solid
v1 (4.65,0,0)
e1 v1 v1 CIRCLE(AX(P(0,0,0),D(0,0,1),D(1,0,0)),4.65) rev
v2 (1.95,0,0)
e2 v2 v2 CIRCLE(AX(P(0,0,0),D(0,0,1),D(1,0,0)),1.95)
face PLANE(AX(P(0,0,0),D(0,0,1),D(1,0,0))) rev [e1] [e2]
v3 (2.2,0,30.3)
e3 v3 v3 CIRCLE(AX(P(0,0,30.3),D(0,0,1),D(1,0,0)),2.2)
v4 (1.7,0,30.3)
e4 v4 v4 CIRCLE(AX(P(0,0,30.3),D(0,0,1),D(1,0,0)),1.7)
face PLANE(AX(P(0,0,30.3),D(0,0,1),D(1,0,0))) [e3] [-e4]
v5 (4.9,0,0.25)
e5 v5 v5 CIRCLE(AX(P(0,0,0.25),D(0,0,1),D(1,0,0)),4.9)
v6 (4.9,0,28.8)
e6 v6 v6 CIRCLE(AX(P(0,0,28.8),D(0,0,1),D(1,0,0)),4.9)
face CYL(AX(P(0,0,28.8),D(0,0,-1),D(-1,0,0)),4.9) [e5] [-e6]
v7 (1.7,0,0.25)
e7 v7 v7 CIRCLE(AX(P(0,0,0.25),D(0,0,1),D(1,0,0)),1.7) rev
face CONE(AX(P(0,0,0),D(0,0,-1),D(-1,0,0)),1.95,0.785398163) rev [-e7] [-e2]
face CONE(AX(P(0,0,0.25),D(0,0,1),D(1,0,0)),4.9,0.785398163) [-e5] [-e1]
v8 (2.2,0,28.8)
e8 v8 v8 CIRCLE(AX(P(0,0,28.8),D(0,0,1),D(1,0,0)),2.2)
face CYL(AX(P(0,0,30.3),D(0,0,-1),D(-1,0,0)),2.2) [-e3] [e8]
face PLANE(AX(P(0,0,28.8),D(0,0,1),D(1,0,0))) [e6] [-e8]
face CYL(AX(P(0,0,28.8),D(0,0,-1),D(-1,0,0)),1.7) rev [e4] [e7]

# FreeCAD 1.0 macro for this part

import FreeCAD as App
import Part
import Sketcher
from FreeCAD import Vector


def edges_at(feature, points):
    """Names of the edges that pass closest to the given points."""
    edges = feature.Shape.Edges
    near = lambda p: min(range(len(edges)), key=lambda i: edges[i].distToShape(Part.Vertex(*p))[0])
    return sorted({f"Edge{near(p) + 1}" for p in points})

doc = App.newDocument("Part")
body = doc.addObject("PartDesign::Body", "Body")

sketch1 = doc.addObject("Sketcher::SketchObject", "Sketch")
body.addObject(sketch1)
sketch1.AttachmentSupport = (doc.XY_Plane, [""])
sketch1.MapMode = "FlatFace"
sketch1.addGeometry([
    Part.Circle(Vector(0, 0, 0), Vector(0, 0, 1), 4.9),
    Part.Circle(Vector(0, 0, 0), Vector(0, 0, 1), 1.7),
], False)
sketch1.addConstraint([
    Sketcher.Constraint("Coincident", 0, 3, -1, 1),
    Sketcher.Constraint("Coincident", 1, 3, -1, 1),
    Sketcher.Constraint("Diameter", 0, 9.8),
    Sketcher.Constraint("Diameter", 1, 3.4),
])
pad1 = doc.addObject("PartDesign::Pad", "Pad")
body.addObject(pad1)
pad1.Profile = sketch1
pad1.Length = 28.8

sketch2 = doc.addObject("Sketcher::SketchObject", "Sketch001")
body.addObject(sketch2)
sketch2.AttachmentSupport = (doc.XY_Plane, [""])
sketch2.MapMode = "FlatFace"
sketch2.AttachmentOffset = App.Placement(Vector(0, 0, 28.8), App.Rotation())
sketch2.addGeometry([
    Part.Circle(Vector(0, 0, 0), Vector(0, 0, 1), 2.2),
    Part.Circle(Vector(0, 0, 0), Vector(0, 0, 1), 1.7),
], False)
sketch2.addConstraint([
    Sketcher.Constraint("Coincident", 0, 3, -1, 1),
    Sketcher.Constraint("Coincident", 1, 3, -1, 1),
    Sketcher.Constraint("Diameter", 0, 4.4),
    Sketcher.Constraint("Diameter", 1, 3.4),
])
pad2 = doc.addObject("PartDesign::Pad", "Pad001")
body.addObject(pad2)
pad2.Profile = sketch2
pad2.Length = 1.5
doc.recompute()

chamfer = doc.addObject("PartDesign::Chamfer", "Chamfer")
body.addObject(chamfer)
chamfer.Base = (pad2, edges_at(pad2, [(-4.9, 0, 0), (-1.7, 0, 0)]))
chamfer.Size = 0.25

doc.recompute()
